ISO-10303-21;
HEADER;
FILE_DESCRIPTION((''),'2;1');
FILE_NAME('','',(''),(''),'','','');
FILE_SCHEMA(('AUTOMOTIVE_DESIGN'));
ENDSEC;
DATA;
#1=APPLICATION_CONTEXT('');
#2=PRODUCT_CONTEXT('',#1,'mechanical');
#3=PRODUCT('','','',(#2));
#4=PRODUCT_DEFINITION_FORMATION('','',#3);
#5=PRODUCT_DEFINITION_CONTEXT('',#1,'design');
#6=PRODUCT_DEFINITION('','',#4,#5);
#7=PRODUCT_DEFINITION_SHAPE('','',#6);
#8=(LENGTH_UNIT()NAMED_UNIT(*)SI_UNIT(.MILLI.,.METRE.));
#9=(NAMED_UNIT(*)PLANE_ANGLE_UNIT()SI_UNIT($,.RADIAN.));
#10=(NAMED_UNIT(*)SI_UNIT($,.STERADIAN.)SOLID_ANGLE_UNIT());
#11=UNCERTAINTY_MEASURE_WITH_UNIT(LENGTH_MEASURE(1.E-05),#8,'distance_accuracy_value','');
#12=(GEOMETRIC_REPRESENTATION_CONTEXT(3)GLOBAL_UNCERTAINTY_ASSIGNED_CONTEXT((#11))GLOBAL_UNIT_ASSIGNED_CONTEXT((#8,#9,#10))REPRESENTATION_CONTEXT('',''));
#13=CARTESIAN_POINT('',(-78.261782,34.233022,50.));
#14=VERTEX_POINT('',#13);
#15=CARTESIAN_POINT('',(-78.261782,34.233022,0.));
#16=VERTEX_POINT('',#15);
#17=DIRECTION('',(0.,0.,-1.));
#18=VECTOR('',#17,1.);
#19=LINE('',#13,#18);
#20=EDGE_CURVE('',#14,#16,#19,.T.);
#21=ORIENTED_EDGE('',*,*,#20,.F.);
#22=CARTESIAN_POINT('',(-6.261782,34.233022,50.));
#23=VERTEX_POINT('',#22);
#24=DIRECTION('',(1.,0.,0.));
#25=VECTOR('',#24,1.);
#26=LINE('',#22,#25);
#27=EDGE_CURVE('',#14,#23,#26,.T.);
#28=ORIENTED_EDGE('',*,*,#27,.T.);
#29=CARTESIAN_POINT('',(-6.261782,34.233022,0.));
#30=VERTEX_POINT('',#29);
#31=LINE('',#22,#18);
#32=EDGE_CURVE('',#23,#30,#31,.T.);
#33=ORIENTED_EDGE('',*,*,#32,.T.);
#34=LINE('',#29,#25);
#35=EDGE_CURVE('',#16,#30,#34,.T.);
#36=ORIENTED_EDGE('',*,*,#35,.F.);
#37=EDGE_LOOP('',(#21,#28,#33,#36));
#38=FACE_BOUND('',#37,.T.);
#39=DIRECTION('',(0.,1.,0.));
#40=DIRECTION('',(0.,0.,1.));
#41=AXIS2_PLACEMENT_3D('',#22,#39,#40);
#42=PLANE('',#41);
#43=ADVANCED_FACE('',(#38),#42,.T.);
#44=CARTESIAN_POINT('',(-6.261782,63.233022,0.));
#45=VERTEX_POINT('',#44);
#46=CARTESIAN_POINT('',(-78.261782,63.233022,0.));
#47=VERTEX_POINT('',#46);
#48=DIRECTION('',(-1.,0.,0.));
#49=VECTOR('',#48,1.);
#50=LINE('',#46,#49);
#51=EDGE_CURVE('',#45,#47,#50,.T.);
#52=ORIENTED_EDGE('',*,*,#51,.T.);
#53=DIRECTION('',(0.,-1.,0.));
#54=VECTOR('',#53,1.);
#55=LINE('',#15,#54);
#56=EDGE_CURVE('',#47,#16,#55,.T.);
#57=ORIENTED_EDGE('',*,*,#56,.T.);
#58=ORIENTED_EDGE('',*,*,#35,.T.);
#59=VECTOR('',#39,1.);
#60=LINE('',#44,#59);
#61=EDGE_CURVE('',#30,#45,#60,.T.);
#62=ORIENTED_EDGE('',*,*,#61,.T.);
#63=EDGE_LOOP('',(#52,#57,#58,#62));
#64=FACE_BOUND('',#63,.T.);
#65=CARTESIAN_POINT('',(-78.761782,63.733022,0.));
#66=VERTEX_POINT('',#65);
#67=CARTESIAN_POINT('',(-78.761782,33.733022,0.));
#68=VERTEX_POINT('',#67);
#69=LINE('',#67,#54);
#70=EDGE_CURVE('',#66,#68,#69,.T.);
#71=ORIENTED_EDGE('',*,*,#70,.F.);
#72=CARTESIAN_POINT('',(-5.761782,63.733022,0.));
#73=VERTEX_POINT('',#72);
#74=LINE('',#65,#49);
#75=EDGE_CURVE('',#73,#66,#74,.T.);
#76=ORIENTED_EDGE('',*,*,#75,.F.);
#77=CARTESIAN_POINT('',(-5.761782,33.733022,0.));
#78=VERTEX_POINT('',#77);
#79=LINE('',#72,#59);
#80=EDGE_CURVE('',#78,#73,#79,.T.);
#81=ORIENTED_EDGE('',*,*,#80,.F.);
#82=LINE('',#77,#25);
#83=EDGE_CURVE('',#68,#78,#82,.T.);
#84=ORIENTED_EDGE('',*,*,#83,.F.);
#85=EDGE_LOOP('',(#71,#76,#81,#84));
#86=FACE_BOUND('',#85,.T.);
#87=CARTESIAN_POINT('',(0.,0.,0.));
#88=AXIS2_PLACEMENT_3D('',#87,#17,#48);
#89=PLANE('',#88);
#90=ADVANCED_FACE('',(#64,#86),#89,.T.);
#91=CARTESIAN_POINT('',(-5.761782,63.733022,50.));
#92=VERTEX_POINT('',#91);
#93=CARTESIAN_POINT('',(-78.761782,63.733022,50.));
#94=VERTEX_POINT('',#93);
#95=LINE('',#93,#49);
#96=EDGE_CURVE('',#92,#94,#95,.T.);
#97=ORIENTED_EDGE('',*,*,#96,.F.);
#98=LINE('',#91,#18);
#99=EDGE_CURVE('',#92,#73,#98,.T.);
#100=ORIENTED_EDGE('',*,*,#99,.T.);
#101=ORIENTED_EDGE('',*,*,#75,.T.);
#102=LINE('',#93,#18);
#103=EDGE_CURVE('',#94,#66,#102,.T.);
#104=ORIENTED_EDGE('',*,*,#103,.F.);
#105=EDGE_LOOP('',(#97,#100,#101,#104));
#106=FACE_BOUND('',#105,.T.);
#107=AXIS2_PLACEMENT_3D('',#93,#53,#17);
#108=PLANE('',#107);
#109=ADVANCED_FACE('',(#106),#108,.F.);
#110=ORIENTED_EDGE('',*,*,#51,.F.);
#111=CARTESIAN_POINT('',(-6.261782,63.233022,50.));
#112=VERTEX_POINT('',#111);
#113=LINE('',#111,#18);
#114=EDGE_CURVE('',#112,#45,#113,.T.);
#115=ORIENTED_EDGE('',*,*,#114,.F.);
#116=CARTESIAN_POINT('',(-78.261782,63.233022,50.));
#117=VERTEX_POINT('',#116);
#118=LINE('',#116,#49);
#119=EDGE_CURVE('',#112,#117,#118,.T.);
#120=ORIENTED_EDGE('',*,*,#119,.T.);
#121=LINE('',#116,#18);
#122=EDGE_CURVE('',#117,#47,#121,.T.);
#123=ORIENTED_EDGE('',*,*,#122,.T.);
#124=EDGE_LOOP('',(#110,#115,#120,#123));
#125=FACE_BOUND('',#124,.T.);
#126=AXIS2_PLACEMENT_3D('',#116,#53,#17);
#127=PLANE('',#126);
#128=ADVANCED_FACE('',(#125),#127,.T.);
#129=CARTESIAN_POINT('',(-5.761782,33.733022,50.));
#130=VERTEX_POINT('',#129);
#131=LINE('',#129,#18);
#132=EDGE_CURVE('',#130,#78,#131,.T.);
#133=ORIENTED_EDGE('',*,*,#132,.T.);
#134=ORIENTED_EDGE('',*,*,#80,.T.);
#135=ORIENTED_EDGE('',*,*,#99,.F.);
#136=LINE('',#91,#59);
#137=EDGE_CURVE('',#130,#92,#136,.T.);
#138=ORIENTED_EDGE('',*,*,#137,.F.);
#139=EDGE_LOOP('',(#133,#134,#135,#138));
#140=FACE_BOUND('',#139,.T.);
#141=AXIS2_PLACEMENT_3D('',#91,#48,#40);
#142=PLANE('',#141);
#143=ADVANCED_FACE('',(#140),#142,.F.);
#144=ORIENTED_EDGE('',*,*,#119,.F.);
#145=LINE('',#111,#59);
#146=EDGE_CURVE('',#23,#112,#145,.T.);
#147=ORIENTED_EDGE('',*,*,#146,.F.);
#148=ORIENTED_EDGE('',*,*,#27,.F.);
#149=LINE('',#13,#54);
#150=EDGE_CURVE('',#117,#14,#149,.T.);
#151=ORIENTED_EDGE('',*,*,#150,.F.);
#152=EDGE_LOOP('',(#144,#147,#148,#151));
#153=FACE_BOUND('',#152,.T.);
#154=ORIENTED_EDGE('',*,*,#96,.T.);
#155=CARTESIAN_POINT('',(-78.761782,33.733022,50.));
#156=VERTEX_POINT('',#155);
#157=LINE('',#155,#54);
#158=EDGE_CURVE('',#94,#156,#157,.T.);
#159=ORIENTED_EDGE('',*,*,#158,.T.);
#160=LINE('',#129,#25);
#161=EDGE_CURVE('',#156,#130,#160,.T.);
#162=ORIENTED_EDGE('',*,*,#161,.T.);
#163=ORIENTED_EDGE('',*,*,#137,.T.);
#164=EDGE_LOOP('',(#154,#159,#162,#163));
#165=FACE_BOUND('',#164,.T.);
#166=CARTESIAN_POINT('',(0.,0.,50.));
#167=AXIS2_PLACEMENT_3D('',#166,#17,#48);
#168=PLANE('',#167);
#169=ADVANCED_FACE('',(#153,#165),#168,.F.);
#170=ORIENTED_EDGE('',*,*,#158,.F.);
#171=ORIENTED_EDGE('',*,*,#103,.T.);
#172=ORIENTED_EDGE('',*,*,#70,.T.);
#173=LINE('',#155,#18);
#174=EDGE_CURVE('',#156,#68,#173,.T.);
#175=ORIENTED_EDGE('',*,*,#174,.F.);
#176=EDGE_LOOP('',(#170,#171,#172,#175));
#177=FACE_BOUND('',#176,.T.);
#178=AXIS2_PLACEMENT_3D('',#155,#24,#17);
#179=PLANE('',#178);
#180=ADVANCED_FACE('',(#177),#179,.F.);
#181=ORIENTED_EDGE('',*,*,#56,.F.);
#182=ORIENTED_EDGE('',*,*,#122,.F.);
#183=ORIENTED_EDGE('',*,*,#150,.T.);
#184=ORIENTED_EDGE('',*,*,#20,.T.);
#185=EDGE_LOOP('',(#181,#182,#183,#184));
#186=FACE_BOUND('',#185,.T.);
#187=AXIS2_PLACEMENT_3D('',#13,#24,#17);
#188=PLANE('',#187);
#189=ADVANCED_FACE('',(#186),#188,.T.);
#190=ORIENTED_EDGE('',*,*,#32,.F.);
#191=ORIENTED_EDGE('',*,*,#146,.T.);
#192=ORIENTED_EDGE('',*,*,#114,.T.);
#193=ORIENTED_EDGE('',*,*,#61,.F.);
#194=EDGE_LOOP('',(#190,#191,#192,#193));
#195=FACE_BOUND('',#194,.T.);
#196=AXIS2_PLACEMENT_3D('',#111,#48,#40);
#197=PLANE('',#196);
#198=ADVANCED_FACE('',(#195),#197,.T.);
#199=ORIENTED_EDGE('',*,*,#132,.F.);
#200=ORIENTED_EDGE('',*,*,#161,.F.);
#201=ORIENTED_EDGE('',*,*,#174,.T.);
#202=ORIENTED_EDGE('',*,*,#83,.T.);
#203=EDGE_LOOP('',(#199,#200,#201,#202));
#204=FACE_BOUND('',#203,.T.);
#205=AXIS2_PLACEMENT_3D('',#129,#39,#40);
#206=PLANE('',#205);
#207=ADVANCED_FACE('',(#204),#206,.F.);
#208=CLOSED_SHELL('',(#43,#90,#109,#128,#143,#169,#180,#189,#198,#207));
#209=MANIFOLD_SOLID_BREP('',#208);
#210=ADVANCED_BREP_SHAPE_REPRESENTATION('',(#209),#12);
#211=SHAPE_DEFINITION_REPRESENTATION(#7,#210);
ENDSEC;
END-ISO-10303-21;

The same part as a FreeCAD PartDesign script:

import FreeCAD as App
import Part
import Sketcher
from FreeCAD import Vector


def add_polygon(sketch, points):
    """Adds a closed chain of lines whose ends are joined by coincident constraints."""
    first, n = sketch.GeometryCount, len(points)
    for a, b in zip(points, points[1:] + points[:1]):
        sketch.addGeometry(Part.LineSegment(App.Vector(*a, 0), App.Vector(*b, 0)), False)
    for i in range(n):
        sketch.addConstraint(Sketcher.Constraint("Coincident", first + i, 2, first + (i + 1) % n, 1))

doc = App.newDocument("Part")
body = doc.addObject("PartDesign::Body", "Body")

# Sketch on XY plane
sketch1 = body.newObject("Sketcher::SketchObject", "Sketch")
sketch1.AttachmentSupport = (doc.getObject("XY_Plane"), [""])
sketch1.MapMode = "FlatFace"
add_polygon(sketch1, [(-79, 64), (-79, 34), (-6, 34), (-6, 64)])  # lines 0-3
add_polygon(sketch1, [(-6, 34), (-78, 34), (-78, 63), (-6, 63)])  # lines 4-7
sketch1.addConstraint(Sketcher.Constraint("Vertical", 0))
sketch1.addConstraint(Sketcher.Constraint("Horizontal", 1))
sketch1.addConstraint(Sketcher.Constraint("Vertical", 2))
sketch1.addConstraint(Sketcher.Constraint("Horizontal", 3))
sketch1.addConstraint(Sketcher.Constraint("Horizontal", 4))
sketch1.addConstraint(Sketcher.Constraint("Vertical", 5))
sketch1.addConstraint(Sketcher.Constraint("Horizontal", 6))
sketch1.addConstraint(Sketcher.Constraint("Vertical", 7))
sketch1.addConstraint(Sketcher.Constraint("DistanceX", 1, 1, 1, 2, 73.0))
sketch1.addConstraint(Sketcher.Constraint("DistanceX", 4, 2, 4, 1, 72.0))
sketch1.addConstraint(Sketcher.Constraint("DistanceY", 0, 2, 0, 1, 30.0))
sketch1.addConstraint(Sketcher.Constraint("DistanceY", 5, 1, 5, 2, 29.0))
sketch1.addConstraint(Sketcher.Constraint("DistanceX", 0, 2, 4, 2, 0.5))
sketch1.addConstraint(Sketcher.Constraint("DistanceY", 0, 2, 4, 2, 0.5))
sketch1.addConstraint(Sketcher.Constraint("DistanceX", 0, 2, -1, 1, 78.761782))
sketch1.addConstraint(Sketcher.Constraint("DistanceY", -1, 1, 0, 2, 33.733022))
pad1 = body.newObject("PartDesign::Pad", "Pad")
pad1.Profile = sketch1
pad1.Length = 50

doc.recompute()
